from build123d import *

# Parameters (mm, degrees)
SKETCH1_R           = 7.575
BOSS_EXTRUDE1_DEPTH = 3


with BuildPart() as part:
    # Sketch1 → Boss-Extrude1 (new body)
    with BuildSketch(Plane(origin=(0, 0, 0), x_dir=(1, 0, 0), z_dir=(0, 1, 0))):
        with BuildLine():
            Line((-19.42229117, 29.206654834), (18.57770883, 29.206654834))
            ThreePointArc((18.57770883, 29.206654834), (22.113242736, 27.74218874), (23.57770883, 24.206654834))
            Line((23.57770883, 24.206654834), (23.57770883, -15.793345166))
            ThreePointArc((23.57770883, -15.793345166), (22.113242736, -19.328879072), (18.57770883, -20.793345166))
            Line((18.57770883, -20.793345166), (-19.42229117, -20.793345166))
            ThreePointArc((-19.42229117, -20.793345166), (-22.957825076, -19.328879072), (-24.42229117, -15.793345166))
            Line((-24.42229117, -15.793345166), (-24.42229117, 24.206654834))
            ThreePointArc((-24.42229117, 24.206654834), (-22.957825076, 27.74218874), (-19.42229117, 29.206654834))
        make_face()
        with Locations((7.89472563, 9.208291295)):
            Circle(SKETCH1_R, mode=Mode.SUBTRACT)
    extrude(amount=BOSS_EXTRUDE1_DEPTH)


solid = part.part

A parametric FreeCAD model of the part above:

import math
import FreeCAD as App
import Part
import Sketcher
from FreeCAD import Vector
Q = App.Units.Quantity

doc = App.newDocument("Part")
body = doc.addObject("PartDesign::Body", "Body")

# Sketch on XZ plane
sketch1 = doc.addObject("Sketcher::SketchObject", "Sketch")
body.addObject(sketch1)
sketch1.AttachmentSupport = (doc.XZ_Plane, [""])
sketch1.MapMode = "FlatFace"
sketch1.addGeometry([
    Part.LineSegment(Vector(19, -29, 0), Vector(-19, -29, 0)),  # 0
    Part.ArcOfCircle(Part.Circle(Vector(-19, -24, 0), Vector(0, 0, 1), 5), math.radians(180), math.radians(270)),  # 1
    Part.LineSegment(Vector(-24, -24, 0), Vector(-24, 16, 0)),  # 2
    Part.ArcOfCircle(Part.Circle(Vector(-19, 16, 0), Vector(0, 0, 1), 5), math.radians(90), math.radians(180)),  # 3
    Part.LineSegment(Vector(-19, 21, 0), Vector(19, 21, 0)),  # 4
    Part.ArcOfCircle(Part.Circle(Vector(19, 16, 0), Vector(0, 0, 1), 5), math.radians(0), math.radians(90)),  # 5
    Part.LineSegment(Vector(24, 16, 0), Vector(24, -24, 0)),  # 6
    Part.ArcOfCircle(Part.Circle(Vector(19, -24, 0), Vector(0, 0, 1), 5), math.radians(-90), math.radians(0)),  # 7
    Part.Circle(Vector(8, -9, 0), Vector(0, 0, 1), 8),  # 8
], False)
sketch1.addConstraint([
    Sketcher.Constraint("Tangent", 0, 2, 1, 2),
    Sketcher.Constraint("Tangent", 1, 1, 2, 1),
    Sketcher.Constraint("Tangent", 2, 2, 3, 2),
    Sketcher.Constraint("Tangent", 3, 1, 4, 1),
    Sketcher.Constraint("Tangent", 4, 2, 5, 2),
    Sketcher.Constraint("Tangent", 5, 1, 6, 1),
    Sketcher.Constraint("Tangent", 6, 2, 7, 2),
    Sketcher.Constraint("Tangent", 7, 1, 0, 1),
    Sketcher.Constraint("Horizontal", 0),
    Sketcher.Constraint("Vertical", 2),
    Sketcher.Constraint("Horizontal", 4),
    Sketcher.Constraint("Vertical", 6),
    Sketcher.Constraint("Equal", 1, 3),
    Sketcher.Constraint("Equal", 3, 5),
    Sketcher.Constraint("Equal", 5, 7),
    Sketcher.Constraint("Radius", 1, Q("5 mm")),
    Sketcher.Constraint("Diameter", 8, Q("15.15 mm")),
    Sketcher.Constraint("DistanceX", 0, 2, 0, 1, Q("38 mm")),
    Sketcher.Constraint("DistanceY", 2, 1, 2, 2, Q("40 mm")),
    Sketcher.Constraint("DistanceX", 1, 3, -1, 1, Q("19.422291 mm")),
    Sketcher.Constraint("DistanceY", 8, 3, -1, 1, Q("9.208291 mm")),
    Sketcher.Constraint("DistanceY", 1, 3, -1, 1, Q("24.206655 mm")),
    Sketcher.Constraint("DistanceX", -1, 1, 8, 3, Q("7.894726 mm")),
])
pad1 = doc.addObject("PartDesign::Pad", "Pad")
body.addObject(pad1)
pad1.Profile = sketch1
pad1.Length = 3
pad1.Reversed = True

doc.recompute()
